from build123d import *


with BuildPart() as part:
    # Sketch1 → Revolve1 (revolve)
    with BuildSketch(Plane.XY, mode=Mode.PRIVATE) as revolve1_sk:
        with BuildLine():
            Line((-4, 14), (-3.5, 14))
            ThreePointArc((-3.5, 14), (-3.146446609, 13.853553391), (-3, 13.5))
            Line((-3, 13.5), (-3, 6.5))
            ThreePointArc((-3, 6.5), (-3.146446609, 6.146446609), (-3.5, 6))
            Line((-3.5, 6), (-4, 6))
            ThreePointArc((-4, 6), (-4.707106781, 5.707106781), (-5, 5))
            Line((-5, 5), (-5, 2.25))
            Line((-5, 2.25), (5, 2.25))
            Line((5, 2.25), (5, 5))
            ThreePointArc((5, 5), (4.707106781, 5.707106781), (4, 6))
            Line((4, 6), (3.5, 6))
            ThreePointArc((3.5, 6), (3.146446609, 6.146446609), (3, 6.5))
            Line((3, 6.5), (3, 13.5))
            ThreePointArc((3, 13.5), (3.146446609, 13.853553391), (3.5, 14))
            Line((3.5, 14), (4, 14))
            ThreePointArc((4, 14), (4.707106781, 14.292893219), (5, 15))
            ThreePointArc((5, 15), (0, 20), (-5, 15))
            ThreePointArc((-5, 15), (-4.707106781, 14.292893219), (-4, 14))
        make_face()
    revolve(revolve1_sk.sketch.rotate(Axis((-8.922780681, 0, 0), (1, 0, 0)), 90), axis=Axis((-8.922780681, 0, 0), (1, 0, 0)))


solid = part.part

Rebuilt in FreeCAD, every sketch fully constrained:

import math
import FreeCAD as App
import Part
import Sketcher

doc = App.newDocument("Part")
body = doc.addObject("PartDesign::Body", "Body")

sketch1 = doc.addObject("Sketcher::SketchObject", "Sketch")
body.addObject(sketch1)
sketch1.AttachmentSupport = (doc.XY_Plane, [""])
sketch1.MapMode = "FlatFace"
sketch1.addGeometry([
    Part.LineSegment(App.Vector(-4, 14, 0), App.Vector(-3.5, 14, 0)),
    Part.ArcOfCircle(Part.Circle(App.Vector(-3.5, 13.5, 0), App.Vector(0, 0, 1), 0.5), math.radians(0), math.radians(90)),
    Part.LineSegment(App.Vector(-3, 13.5, 0), App.Vector(-3, 6.5, 0)),
    Part.ArcOfCircle(Part.Circle(App.Vector(-3.5, 6.5, 0), App.Vector(0, 0, 1), 0.5), math.radians(-90), math.radians(0)),
    Part.LineSegment(App.Vector(-3.5, 6, 0), App.Vector(-4, 6, 0)),
    Part.ArcOfCircle(Part.Circle(App.Vector(-4, 5, 0), App.Vector(0, 0, 1), 1), math.radians(90), math.radians(180)),
    Part.LineSegment(App.Vector(-5, 5, 0), App.Vector(-5, 2.25, 0)),
    Part.LineSegment(App.Vector(-5, 2.25, 0), App.Vector(5, 2.25, 0)),
    Part.LineSegment(App.Vector(5, 2.25, 0), App.Vector(5, 5, 0)),
    Part.ArcOfCircle(Part.Circle(App.Vector(4, 5, 0), App.Vector(0, 0, 1), 1), math.radians(0), math.radians(90)),
    Part.LineSegment(App.Vector(4, 6, 0), App.Vector(3.5, 6, 0)),
    Part.ArcOfCircle(Part.Circle(App.Vector(3.5, 6.5, 0), App.Vector(0, 0, 1), 0.5), math.radians(180), math.radians(270)),
    Part.LineSegment(App.Vector(3, 6.5, 0), App.Vector(3, 13.5, 0)),
    Part.ArcOfCircle(Part.Circle(App.Vector(3.5, 13.5, 0), App.Vector(0, 0, 1), 0.5), math.radians(90), math.radians(180)),
    Part.LineSegment(App.Vector(3.5, 14, 0), App.Vector(4, 14, 0)),
    Part.ArcOfCircle(Part.Circle(App.Vector(4, 15, 0), App.Vector(0, 0, 1), 1), math.radians(-90), math.radians(0)),
    Part.ArcOfCircle(Part.Circle(App.Vector(0, 15, 0), App.Vector(0, 0, 1), 5), math.radians(0), math.radians(180)),
    Part.ArcOfCircle(Part.Circle(App.Vector(-4, 15, 0), App.Vector(0, 0, 1), 1), math.radians(-180), math.radians(-90)),
], False)
sketch1.addConstraint([
    Sketcher.Constraint("Tangent", 0, 2, 1, 2),
    Sketcher.Constraint("Tangent", 1, 1, 2, 1),
    Sketcher.Constraint("Tangent", 2, 2, 3, 2),
    Sketcher.Constraint("Tangent", 3, 1, 4, 1),
    Sketcher.Constraint("Tangent", 4, 2, 5, 1),
    Sketcher.Constraint("Tangent", 5, 2, 6, 1),
    Sketcher.Constraint("Coincident", 6, 2, 7, 1),
    Sketcher.Constraint("Coincident", 7, 2, 8, 1),
    Sketcher.Constraint("Tangent", 8, 2, 9, 1),
    Sketcher.Constraint("Tangent", 9, 2, 10, 1),
    Sketcher.Constraint("Tangent", 10, 2, 11, 2),
    Sketcher.Constraint("Tangent", 11, 1, 12, 1),
    Sketcher.Constraint("Tangent", 12, 2, 13, 2),
    Sketcher.Constraint("Tangent", 13, 1, 14, 1),
    Sketcher.Constraint("Tangent", 14, 2, 15, 1),
    Sketcher.Constraint("Tangent", 15, 2, 16, 1),
    Sketcher.Constraint("Tangent", 16, 2, 17, 1),
    Sketcher.Constraint("Tangent", 17, 2, 0, 1),
    Sketcher.Constraint("Horizontal", 0),
    Sketcher.Constraint("Vertical", 2),
    Sketcher.Constraint("Horizontal", 4),
    Sketcher.Constraint("Vertical", 6),
    Sketcher.Constraint("Horizontal", 7),
    Sketcher.Constraint("Vertical", 8),
    Sketcher.Constraint("Horizontal", 10),
    Sketcher.Constraint("Vertical", 12),
    Sketcher.Constraint("Horizontal", 14),
    Sketcher.Constraint("Equal", 1, 3),
    Sketcher.Constraint("Equal", 5, 9),
    Sketcher.Constraint("Equal", 3, 11),
    Sketcher.Constraint("Equal", 11, 13),
    Sketcher.Constraint("Equal", 9, 15),
    Sketcher.Constraint("Equal", 15, 17),
    Sketcher.Constraint("Symmetric", 5, 3, 9, 3, -2),
    Sketcher.Constraint("Symmetric", 1, 3, 13, 3, -2),
    Sketcher.Constraint("PointOnObject", 16, 3, -2),
    Sketcher.Constraint("Horizontal", 15, 3, 16, 3),
    Sketcher.Constraint("Vertical", 9, 3, 15, 3),
    Sketcher.Constraint("Radius", 5, 1.0),
    Sketcher.Constraint("Radius", 16, 5.0),
    Sketcher.Constraint("Radius", 1, 0.5),
    Sketcher.Constraint("DistanceY", 2, 2, 2, 1, 7.0),
    Sketcher.Constraint("DistanceX", 0, 1, 0, 2, 0.5),
    Sketcher.Constraint("DistanceY", -1, 1, 5, 3, 5.0),
    Sketcher.Constraint("DistanceY", 6, 2, 6, 1, 2.75),
])
revolution = doc.addObject("PartDesign::Revolution", "Revolution")
body.addObject(revolution)
revolution.Profile = sketch1
revolution.ReferenceAxis = (sketch1, ["H_Axis"])
revolution.Angle = 360

doc.recompute()
